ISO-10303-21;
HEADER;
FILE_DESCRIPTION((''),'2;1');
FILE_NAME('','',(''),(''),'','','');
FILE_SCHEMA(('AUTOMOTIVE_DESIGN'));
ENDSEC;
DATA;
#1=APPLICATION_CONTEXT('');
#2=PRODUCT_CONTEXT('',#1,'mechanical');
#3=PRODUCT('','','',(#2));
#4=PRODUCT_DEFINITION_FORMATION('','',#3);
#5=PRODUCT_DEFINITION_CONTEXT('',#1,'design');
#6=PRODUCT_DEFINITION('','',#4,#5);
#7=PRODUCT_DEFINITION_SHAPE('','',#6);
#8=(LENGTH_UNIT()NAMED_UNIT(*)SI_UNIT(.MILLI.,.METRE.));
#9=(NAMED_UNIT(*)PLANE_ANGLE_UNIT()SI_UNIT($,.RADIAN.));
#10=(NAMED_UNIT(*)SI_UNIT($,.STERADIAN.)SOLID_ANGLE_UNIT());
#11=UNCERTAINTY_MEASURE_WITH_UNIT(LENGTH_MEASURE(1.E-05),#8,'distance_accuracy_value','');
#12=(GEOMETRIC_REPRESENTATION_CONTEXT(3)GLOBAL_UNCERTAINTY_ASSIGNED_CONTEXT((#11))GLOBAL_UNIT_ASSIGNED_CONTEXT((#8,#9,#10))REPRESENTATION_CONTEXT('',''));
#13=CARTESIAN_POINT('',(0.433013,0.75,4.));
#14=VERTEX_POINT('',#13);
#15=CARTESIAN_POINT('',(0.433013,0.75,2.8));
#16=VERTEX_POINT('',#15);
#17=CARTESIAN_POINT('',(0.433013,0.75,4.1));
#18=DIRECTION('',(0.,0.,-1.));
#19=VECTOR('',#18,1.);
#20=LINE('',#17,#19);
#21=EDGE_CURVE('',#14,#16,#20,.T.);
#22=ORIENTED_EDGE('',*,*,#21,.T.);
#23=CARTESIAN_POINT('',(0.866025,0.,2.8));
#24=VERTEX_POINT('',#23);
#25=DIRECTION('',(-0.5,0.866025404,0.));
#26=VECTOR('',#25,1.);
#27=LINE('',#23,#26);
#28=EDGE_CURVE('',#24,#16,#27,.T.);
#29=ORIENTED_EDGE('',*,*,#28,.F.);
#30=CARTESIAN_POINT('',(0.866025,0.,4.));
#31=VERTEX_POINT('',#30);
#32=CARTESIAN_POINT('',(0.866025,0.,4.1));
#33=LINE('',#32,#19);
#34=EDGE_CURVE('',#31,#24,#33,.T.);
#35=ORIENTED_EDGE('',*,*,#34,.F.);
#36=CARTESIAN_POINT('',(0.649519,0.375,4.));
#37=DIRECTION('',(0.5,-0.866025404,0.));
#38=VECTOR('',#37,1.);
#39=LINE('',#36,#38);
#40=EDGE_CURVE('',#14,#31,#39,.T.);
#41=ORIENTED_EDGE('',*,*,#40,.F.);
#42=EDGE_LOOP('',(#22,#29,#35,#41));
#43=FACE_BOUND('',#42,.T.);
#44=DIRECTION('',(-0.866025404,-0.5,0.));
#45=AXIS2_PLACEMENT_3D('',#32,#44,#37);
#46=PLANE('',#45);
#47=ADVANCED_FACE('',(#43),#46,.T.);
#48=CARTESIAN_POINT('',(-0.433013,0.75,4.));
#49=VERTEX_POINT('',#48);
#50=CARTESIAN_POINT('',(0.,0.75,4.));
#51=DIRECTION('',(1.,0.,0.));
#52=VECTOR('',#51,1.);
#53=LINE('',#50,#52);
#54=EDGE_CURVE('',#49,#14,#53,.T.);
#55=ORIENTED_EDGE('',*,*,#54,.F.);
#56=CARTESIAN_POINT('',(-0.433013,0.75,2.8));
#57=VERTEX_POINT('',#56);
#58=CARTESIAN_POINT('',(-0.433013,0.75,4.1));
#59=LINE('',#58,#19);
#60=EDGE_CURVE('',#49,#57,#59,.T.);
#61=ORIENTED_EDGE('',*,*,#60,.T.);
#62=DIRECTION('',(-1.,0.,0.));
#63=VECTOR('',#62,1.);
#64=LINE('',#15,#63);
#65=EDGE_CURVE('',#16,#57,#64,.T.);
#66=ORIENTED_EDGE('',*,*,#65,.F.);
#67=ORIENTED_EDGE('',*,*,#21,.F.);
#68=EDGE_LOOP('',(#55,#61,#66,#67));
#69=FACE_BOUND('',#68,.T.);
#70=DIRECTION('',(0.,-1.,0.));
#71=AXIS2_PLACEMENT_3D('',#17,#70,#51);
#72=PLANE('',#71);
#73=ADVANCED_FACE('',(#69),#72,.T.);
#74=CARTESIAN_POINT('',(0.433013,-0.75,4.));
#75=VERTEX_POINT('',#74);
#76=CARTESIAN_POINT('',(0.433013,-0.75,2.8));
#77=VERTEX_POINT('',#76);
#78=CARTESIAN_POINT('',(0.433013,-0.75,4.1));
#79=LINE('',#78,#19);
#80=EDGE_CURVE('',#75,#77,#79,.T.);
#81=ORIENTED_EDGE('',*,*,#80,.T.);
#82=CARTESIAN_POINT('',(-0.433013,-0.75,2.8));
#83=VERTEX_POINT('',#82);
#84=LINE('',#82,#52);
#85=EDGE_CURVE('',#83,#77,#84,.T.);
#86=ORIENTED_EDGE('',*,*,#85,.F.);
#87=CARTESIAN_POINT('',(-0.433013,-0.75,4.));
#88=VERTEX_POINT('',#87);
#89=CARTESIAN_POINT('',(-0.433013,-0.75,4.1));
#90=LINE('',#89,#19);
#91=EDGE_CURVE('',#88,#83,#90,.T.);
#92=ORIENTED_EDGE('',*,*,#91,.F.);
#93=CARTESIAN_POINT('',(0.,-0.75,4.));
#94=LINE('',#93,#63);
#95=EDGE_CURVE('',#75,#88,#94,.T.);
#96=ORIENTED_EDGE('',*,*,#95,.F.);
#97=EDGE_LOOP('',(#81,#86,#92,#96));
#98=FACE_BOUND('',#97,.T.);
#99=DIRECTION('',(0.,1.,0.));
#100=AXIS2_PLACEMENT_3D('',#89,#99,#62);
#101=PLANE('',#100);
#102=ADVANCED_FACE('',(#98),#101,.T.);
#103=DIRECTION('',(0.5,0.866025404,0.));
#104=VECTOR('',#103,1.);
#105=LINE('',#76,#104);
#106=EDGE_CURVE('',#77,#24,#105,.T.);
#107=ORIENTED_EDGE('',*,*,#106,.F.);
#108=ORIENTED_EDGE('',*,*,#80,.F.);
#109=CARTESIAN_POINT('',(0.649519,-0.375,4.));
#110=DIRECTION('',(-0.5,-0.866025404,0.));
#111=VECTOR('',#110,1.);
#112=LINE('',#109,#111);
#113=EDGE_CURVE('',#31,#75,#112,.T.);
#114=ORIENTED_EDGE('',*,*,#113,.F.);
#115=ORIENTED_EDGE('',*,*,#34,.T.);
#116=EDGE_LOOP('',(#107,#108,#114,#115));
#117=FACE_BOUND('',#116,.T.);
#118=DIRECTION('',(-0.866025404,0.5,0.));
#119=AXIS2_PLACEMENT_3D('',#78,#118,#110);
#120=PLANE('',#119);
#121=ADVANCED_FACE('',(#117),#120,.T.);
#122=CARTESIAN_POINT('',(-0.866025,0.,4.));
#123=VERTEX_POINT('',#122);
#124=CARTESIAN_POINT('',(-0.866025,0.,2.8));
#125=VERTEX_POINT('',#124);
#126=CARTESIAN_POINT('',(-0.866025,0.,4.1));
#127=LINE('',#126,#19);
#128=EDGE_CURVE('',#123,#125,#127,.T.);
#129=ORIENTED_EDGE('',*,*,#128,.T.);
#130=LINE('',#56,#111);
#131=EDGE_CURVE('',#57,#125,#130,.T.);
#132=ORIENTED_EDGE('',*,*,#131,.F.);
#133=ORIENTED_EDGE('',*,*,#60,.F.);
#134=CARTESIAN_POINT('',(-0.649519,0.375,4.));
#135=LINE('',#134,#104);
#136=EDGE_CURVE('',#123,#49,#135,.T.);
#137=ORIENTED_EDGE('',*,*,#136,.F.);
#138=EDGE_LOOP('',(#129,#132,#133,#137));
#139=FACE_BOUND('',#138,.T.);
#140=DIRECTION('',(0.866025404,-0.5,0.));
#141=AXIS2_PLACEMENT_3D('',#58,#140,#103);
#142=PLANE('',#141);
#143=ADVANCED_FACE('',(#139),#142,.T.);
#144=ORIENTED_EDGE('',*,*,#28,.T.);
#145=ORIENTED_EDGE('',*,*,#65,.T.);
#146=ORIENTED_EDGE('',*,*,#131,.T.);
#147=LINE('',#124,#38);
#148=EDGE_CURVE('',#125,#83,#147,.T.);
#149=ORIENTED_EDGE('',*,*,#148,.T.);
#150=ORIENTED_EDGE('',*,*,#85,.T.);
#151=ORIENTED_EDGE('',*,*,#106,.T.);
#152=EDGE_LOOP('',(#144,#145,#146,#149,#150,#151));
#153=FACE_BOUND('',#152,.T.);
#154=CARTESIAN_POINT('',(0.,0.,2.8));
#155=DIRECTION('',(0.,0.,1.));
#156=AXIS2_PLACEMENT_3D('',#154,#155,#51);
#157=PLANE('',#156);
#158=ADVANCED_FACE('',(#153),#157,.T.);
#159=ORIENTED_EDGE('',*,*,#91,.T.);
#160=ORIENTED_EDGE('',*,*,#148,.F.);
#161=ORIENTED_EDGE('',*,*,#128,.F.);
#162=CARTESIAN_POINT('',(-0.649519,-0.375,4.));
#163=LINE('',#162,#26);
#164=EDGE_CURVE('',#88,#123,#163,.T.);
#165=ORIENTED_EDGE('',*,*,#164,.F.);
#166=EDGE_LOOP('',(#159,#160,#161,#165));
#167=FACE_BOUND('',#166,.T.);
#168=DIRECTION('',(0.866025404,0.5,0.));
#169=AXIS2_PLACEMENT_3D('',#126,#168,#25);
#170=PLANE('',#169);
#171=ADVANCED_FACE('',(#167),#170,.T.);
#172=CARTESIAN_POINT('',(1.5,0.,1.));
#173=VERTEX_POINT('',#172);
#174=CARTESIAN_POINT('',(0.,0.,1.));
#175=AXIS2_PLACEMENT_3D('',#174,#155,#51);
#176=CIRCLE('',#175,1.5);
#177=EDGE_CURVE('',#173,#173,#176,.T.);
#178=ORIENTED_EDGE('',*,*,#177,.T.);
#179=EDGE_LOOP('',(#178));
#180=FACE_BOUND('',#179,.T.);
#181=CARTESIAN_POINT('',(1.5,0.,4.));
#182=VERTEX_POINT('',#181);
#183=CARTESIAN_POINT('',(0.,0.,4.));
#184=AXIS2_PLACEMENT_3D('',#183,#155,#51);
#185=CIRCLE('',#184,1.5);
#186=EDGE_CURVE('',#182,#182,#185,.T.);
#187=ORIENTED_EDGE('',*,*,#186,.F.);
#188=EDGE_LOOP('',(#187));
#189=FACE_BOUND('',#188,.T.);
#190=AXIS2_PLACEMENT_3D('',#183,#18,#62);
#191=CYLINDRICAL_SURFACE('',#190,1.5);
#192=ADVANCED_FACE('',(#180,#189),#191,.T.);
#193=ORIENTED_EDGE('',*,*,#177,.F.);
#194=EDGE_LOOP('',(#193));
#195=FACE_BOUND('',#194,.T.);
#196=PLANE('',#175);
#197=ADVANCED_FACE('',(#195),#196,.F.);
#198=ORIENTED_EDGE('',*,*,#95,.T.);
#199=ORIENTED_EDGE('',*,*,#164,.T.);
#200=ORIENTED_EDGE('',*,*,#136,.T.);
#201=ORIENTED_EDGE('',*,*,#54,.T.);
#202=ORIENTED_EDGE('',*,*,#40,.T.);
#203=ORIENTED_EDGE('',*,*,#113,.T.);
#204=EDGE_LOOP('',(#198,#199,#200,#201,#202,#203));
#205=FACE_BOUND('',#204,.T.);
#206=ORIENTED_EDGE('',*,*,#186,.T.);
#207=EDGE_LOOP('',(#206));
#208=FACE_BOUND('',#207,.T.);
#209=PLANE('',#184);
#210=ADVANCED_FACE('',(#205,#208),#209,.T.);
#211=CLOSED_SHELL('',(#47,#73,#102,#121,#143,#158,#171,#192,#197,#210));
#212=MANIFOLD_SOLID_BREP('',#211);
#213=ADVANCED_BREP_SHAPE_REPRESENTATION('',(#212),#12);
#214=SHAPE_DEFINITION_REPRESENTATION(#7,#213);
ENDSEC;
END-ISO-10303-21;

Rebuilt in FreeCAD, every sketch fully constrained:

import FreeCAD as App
import Part
import Sketcher

V = App.Vector
Q = App.Units.Quantity

doc = App.newDocument("Part")
body = doc.addObject("PartDesign::Body", "Body")

# Sketch on XY plane
sketch1 = body.newObject("Sketcher::SketchObject", "Sketch")
sketch1.AttachmentSupport = (doc.getObject("XY_Plane"), [""])
sketch1.MapMode = "FlatFace"
sketch1.addGeometry(Part.Circle(V(0, 0, 0), V(0, 0, 1), 1.5), False)
sketch1.addConstraint([
    Sketcher.Constraint("Coincident", 0, 3, -1, 1),
    Sketcher.Constraint("Diameter", 0, 3.0),
])
pad1 = body.newObject("PartDesign::Pad", "Pad")
pad1.Profile = sketch1
pad1.Length = 4

# Sketch on XY plane
sketch2 = body.newObject("Sketcher::SketchObject", "Sketch001")
sketch2.AttachmentSupport = (doc.getObject("XY_Plane"), [""])
sketch2.MapMode = "FlatFace"
sketch2.AttachmentOffset = App.Placement(V(0, 0, 2.8), App.Rotation())
sketch2.addGeometry([
    Part.LineSegment(V(0.9, 0, 0), V(0.4, 0.8, 0)),  # 0
    Part.LineSegment(V(0.4, 0.8, 0), V(-0.4, 0.8, 0)),  # 1
    Part.LineSegment(V(-0.4, 0.8, 0), V(-0.9, 0, 0)),  # 2
    Part.LineSegment(V(-0.9, 0, 0), V(-0.4, -0.8, 0)),  # 3
    Part.LineSegment(V(-0.4, -0.8, 0), V(0.4, -0.8, 0)),  # 4
    Part.LineSegment(V(0.4, -0.8, 0), V(0.9, 0, 0)),  # 5
], False)
sketch2.addConstraint([
    Sketcher.Constraint("Coincident", 0, 2, 1, 1),
    Sketcher.Constraint("Coincident", 1, 2, 2, 1),
    Sketcher.Constraint("Coincident", 2, 2, 3, 1),
    Sketcher.Constraint("Coincident", 3, 2, 4, 1),
    Sketcher.Constraint("Coincident", 4, 2, 5, 1),
    Sketcher.Constraint("Coincident", 5, 2, 0, 1),
    Sketcher.Constraint("Horizontal", 1),
    Sketcher.Constraint("Horizontal", 4),
    Sketcher.Constraint("Symmetric", 0, 2, 3, 2, -1, 1),
    Sketcher.Constraint("Symmetric", 2, 2, 5, 2, -1, 1),
    Sketcher.Constraint("PointOnObject", 2, 2, -1),
    Sketcher.Constraint("Parallel", 2, 5),
    Sketcher.Constraint("Vertical", 1, 2, 3, 2),
    Sketcher.Constraint("Angle", 0, Q("120 deg")),
    Sketcher.Constraint("DistanceY", 3, 2, 1, 2, 1.5),
    Sketcher.Constraint("DistanceX", 1, 2, 1, 1, 0.866025),
])
pocket1 = body.newObject("PartDesign::Pocket", "Pocket")
pocket1.Profile = sketch2
pocket1.Length = 1.3
pocket1.Reversed = True

# Sketch on XY plane
sketch3 = body.newObject("Sketcher::SketchObject", "Sketch002")
sketch3.AttachmentSupport = (doc.getObject("XY_Plane"), [""])
sketch3.MapMode = "FlatFace"
sketch3.AttachmentOffset = App.Placement(V(0, 0, 1), App.Rotation())
sketch3.addGeometry(Part.Circle(V(0, 0, 0), V(0, 0, 1), 2), False)
sketch3.addConstraint([
    Sketcher.Constraint("Coincident", 0, 3, -1, 1),
    Sketcher.Constraint("Diameter", 0, 4.0),
])
pocket2 = body.newObject("PartDesign::Pocket", "Pocket001")
pocket2.Profile = sketch3
pocket2.Length = 1.1

doc.recompute()
